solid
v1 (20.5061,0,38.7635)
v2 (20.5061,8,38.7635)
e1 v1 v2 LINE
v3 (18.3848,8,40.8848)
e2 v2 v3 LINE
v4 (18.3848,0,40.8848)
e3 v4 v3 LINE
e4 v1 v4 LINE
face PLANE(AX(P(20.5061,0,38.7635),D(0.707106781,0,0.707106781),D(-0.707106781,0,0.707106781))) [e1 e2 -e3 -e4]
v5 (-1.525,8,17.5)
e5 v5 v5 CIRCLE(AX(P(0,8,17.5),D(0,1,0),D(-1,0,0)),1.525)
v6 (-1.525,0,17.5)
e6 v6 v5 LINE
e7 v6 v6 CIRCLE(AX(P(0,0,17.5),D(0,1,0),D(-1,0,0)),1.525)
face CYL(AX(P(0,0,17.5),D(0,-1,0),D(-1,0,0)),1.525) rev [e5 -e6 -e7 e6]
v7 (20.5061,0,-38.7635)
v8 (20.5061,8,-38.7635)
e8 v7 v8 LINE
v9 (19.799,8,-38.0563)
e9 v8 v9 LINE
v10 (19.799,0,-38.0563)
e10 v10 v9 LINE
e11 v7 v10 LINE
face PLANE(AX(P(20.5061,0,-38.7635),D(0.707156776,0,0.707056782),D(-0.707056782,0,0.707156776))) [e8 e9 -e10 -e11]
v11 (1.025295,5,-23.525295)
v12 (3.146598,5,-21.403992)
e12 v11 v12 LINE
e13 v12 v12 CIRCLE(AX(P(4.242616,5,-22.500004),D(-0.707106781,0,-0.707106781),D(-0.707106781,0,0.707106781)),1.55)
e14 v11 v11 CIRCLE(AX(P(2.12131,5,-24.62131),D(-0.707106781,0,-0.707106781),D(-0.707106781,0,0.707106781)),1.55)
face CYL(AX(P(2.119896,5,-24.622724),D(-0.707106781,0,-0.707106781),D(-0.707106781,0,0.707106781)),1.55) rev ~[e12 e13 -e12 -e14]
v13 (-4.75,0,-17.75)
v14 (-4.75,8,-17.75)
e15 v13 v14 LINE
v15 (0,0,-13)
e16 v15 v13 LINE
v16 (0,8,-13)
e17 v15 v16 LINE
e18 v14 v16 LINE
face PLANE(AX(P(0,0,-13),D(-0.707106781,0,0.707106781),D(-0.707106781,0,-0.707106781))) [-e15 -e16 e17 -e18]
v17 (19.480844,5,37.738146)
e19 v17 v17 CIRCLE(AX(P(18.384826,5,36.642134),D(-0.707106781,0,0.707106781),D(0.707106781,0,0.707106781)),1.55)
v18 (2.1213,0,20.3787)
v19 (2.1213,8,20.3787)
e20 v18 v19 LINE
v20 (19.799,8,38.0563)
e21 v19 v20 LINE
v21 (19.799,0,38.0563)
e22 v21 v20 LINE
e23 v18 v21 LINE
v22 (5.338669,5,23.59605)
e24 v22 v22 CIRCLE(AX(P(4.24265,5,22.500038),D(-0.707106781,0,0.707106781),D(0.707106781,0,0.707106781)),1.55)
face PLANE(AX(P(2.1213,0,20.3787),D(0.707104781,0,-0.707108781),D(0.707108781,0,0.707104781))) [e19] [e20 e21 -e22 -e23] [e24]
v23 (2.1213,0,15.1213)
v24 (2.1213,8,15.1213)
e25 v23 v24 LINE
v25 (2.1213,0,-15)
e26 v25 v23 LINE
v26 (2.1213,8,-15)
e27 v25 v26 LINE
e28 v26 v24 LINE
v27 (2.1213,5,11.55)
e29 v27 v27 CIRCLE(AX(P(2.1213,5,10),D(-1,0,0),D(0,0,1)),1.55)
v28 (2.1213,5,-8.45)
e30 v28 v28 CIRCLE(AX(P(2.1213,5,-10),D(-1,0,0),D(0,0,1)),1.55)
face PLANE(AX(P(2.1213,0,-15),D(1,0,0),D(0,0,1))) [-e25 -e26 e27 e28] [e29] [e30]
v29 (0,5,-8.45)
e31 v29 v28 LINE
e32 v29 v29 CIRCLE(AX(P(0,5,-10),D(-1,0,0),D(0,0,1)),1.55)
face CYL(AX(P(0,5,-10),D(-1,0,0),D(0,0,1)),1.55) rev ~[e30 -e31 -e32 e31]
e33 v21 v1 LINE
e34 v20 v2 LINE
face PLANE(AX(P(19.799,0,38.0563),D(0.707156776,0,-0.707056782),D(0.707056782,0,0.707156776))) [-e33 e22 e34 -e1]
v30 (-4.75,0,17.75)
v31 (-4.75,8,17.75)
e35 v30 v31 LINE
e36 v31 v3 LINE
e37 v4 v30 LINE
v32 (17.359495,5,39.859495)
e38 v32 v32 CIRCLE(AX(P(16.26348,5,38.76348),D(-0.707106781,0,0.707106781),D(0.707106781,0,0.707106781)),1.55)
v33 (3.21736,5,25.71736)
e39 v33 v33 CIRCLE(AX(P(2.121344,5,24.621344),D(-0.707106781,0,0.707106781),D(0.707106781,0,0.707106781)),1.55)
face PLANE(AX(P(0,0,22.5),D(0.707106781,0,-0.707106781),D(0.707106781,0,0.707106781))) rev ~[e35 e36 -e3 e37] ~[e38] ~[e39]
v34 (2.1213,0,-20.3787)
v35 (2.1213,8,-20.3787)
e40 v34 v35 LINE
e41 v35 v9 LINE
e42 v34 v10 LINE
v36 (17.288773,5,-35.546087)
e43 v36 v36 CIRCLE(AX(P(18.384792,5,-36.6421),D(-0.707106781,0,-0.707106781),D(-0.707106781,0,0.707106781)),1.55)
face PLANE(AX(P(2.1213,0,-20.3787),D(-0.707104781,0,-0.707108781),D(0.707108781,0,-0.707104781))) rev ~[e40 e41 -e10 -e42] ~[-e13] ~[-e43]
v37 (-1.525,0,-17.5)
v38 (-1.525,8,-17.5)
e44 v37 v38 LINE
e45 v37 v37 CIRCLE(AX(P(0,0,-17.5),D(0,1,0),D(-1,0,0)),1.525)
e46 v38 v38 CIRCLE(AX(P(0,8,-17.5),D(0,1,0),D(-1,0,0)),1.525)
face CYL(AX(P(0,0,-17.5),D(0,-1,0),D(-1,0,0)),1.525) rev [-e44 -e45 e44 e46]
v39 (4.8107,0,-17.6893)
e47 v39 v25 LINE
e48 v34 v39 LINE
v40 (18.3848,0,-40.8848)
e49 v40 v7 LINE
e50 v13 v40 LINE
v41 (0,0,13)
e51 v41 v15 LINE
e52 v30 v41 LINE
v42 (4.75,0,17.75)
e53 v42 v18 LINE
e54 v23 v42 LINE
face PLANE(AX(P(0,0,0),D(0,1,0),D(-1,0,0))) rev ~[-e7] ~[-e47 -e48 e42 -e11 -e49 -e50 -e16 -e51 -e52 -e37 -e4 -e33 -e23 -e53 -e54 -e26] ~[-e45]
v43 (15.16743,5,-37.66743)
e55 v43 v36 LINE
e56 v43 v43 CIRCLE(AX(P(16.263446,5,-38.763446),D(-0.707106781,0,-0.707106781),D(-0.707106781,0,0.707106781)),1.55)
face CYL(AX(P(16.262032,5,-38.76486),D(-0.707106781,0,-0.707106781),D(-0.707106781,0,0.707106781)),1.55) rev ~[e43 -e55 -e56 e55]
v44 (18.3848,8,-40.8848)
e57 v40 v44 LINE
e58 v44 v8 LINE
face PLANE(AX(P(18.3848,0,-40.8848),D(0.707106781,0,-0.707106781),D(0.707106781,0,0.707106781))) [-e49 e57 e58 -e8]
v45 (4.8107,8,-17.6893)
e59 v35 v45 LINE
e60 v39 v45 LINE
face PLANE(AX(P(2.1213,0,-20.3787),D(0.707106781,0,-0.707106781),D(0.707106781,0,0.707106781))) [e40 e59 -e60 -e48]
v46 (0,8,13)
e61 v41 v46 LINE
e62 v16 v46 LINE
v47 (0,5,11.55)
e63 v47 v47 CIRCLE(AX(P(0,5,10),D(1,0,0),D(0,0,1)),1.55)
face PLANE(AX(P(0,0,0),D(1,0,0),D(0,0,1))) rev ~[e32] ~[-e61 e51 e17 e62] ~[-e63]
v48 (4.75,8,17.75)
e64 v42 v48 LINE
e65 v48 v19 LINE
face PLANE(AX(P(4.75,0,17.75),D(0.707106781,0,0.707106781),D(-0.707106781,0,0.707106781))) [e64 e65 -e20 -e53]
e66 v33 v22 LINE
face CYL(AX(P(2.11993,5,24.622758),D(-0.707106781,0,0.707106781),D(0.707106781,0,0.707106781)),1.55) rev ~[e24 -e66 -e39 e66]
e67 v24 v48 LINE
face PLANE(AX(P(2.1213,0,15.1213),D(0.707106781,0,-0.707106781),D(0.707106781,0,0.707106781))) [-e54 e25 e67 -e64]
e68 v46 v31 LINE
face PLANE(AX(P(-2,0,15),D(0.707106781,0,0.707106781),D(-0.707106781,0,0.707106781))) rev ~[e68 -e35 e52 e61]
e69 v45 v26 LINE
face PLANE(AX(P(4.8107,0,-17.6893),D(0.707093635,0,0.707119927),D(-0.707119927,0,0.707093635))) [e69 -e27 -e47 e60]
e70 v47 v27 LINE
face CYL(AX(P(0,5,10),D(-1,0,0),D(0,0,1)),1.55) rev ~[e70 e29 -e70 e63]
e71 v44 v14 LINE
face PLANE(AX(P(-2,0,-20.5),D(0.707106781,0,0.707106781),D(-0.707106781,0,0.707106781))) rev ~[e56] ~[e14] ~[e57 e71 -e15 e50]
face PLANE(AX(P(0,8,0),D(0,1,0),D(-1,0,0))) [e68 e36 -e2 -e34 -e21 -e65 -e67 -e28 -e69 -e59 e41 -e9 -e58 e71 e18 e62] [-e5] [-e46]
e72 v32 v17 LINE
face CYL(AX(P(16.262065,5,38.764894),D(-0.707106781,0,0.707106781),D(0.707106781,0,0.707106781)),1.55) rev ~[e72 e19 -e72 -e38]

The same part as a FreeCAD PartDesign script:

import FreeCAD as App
import Part
import Sketcher
Q = App.Units.Quantity

doc = App.newDocument("Part")
params = doc.addObject("Spreadsheet::Sheet", "Params")
for row, (alias, value) in enumerate([
    ("sketch1_diameter", "3.05 mm"),
    ("sketch1_height", "26 mm"),
    ("sketch1_length", "25 mm"),
    ("sketch1_length2", "3 mm"),
    ("sketch1_length3", "1 mm"),
    ("pad1_length", "8 mm"),
    ("sketch2_diameter", "3.1 mm"),
    ("pocket1_length", "8 mm"),
    ("sketch3_diameter", "3.1 mm"),
    ("pocket2_length", "8 mm"),
    ("sketch4_diameter", "3.1 mm"),
    ("pocket3_length", "8 mm"),
], start=1):
    params.set(f"A{row}", alias)
    params.set(f"B{row}", "=" + value)
    params.setAlias(f"B{row}", alias)

body = doc.addObject("PartDesign::Body", "Body")

sketch1 = body.newObject("Sketcher::SketchObject", "Sketch")
sketch1.AttachmentSupport = (doc.getObject("XZ_Plane"), [""])
sketch1.MapMode = "FlatFace"
sketch1.addGeometry([
    Part.LineSegment(App.Vector(19.8, 38.1, 0), App.Vector(2.1, 20.4, 0)),
    Part.LineSegment(App.Vector(2.1, 20.4, 0), App.Vector(4.8, 17.8, 0)),
    Part.LineSegment(App.Vector(4.8, 17.8, 0), App.Vector(2.1, 15.1, 0)),
    Part.LineSegment(App.Vector(2.1, 15.1, 0), App.Vector(2.1, -15, 0)),
    Part.LineSegment(App.Vector(2.1, -15, 0), App.Vector(4.8, -17.7, 0)),
    Part.LineSegment(App.Vector(4.8, -17.7, 0), App.Vector(2.1, -20.4, 0)),
    Part.LineSegment(App.Vector(2.1, -20.4, 0), App.Vector(19.8, -38.1, 0)),
    Part.LineSegment(App.Vector(19.8, -38.1, 0), App.Vector(20.5, -38.8, 0)),
    Part.LineSegment(App.Vector(20.5, -38.8, 0), App.Vector(18.4, -40.9, 0)),
    Part.LineSegment(App.Vector(18.4, -40.9, 0), App.Vector(-4.8, -17.8, 0)),
    Part.LineSegment(App.Vector(-4.8, -17.8, 0), App.Vector(0, -13, 0)),
    Part.LineSegment(App.Vector(0, -13, 0), App.Vector(0, 13, 0)),
    Part.LineSegment(App.Vector(0, 13, 0), App.Vector(-4.8, 17.8, 0)),
    Part.LineSegment(App.Vector(-4.8, 17.8, 0), App.Vector(18.4, 40.9, 0)),
    Part.LineSegment(App.Vector(18.4, 40.9, 0), App.Vector(20.5, 38.8, 0)),
    Part.LineSegment(App.Vector(20.5, 38.8, 0), App.Vector(19.8, 38.1, 0)),
    Part.Circle(App.Vector(0, 17.5, 0), App.Vector(0, 0, 1), 1.5),
    Part.Circle(App.Vector(0, -17.5, 0), App.Vector(0, 0, 1), 1.5),
], False)
sketch1.addConstraint([
    Sketcher.Constraint("Coincident", 0, 2, 1, 1),
    Sketcher.Constraint("Coincident", 1, 2, 2, 1),
    Sketcher.Constraint("Coincident", 2, 2, 3, 1),
    Sketcher.Constraint("Coincident", 3, 2, 4, 1),
    Sketcher.Constraint("Coincident", 4, 2, 5, 1),
    Sketcher.Constraint("Coincident", 5, 2, 6, 1),
    Sketcher.Constraint("Coincident", 6, 2, 7, 1),
    Sketcher.Constraint("Coincident", 7, 2, 8, 1),
    Sketcher.Constraint("Coincident", 8, 2, 9, 1),
    Sketcher.Constraint("Coincident", 9, 2, 10, 1),
    Sketcher.Constraint("Coincident", 10, 2, 11, 1),
    Sketcher.Constraint("Coincident", 11, 2, 12, 1),
    Sketcher.Constraint("Coincident", 12, 2, 13, 1),
    Sketcher.Constraint("Coincident", 13, 2, 14, 1),
    Sketcher.Constraint("Coincident", 14, 2, 15, 1),
    Sketcher.Constraint("Coincident", 15, 2, 0, 1),
    Sketcher.Constraint("Vertical", 3),
    Sketcher.Constraint("Vertical", 11),
    Sketcher.Constraint("Equal", 16, 17),
    Sketcher.Constraint("Symmetric", 16, 3, 17, 3, -1, 1),
    Sketcher.Constraint("Symmetric", 1, 2, 9, 2, -1, 1),
    Sketcher.Constraint("Symmetric", 10, 2, 11, 2, -1, 1),
    Sketcher.Constraint("Symmetric", 1, 2, 12, 2, -2),
    Sketcher.Constraint("Symmetric", 0, 2, 5, 2, -1),
    Sketcher.Constraint("Symmetric", 8, 2, 13, 2, -1),
    Sketcher.Constraint("Symmetric", 7, 2, 14, 2, -1),
    Sketcher.Constraint("Symmetric", 6, 2, 15, 2, -1),
    Sketcher.Constraint("PointOnObject", 16, 3, -2),
    Sketcher.Constraint("Perpendicular", 0, 1),
    Sketcher.Constraint("Perpendicular", 1, 2),
    Sketcher.Constraint("Perpendicular", 2, 4),
    Sketcher.Constraint("Perpendicular", 4, 5),
    Sketcher.Constraint("Perpendicular", 5, 6),
    Sketcher.Constraint("Parallel", 6, 7),
    Sketcher.Constraint("Perpendicular", 7, 8),
    Sketcher.Constraint("Perpendicular", 8, 9),
    Sketcher.Constraint("Perpendicular", 9, 10),
    Sketcher.Constraint("Vertical", 0, 2, 2, 2),
    Sketcher.Constraint("Diameter", 16, Q("3.05 mm")),
    Sketcher.Constraint("DistanceY", 11, 1, 11, 2, Q("26 mm")),
    Sketcher.Constraint("Distance", 0, Q("25 mm")),
    Sketcher.Constraint("Distance", 8, Q("3 mm")),
    Sketcher.Constraint("Distance", 7, Q("1 mm")),
    Sketcher.Constraint("DistanceY", 3, 2, -1, 1, Q("15 mm")),
    Sketcher.Constraint("DistanceY", 17, 3, 16, 3, Q("35 mm")),
    Sketcher.Constraint("DistanceY", 5, 2, 2, 2, Q("35.5 mm")),
])
sketch1.setExpression("Constraints[38]", "Params.sketch1_diameter")
sketch1.setExpression("Constraints[39]", "Params.sketch1_height")
sketch1.setExpression("Constraints[40]", "Params.sketch1_length")
sketch1.setExpression("Constraints[41]", "Params.sketch1_length2")
sketch1.setExpression("Constraints[42]", "Params.sketch1_length3")
pad1 = body.newObject("PartDesign::Pad", "Pad")
pad1.Profile = sketch1
pad1.setExpression("Length", "Params.pad1_length")
pad1.Reversed = True

sketch2 = body.newObject("Sketcher::SketchObject", "Sketch001")
sketch2.AttachmentSupport = (doc.getObject("YZ_Plane"), [""])
sketch2.MapMode = "FlatFace"
sketch2.addGeometry([
    Part.Circle(App.Vector(5, -10, 0), App.Vector(0, 0, 1), 1.6),
    Part.Circle(App.Vector(5, 10, 0), App.Vector(0, 0, 1), 1.6),
], False)
sketch2.addConstraint([
    Sketcher.Constraint("Equal", 0, 1),
    Sketcher.Constraint("Symmetric", 0, 3, 1, 3, -1),
    Sketcher.Constraint("Diameter", 0, Q("3.1 mm")),
    Sketcher.Constraint("DistanceX", -1, 1, 0, 3, Q("5 mm")),
    Sketcher.Constraint("DistanceY", 0, 3, -1, 1, Q("10 mm")),
])
sketch2.setExpression("Constraints[2]", "Params.sketch2_diameter")
pocket1 = body.newObject("PartDesign::Pocket", "Pocket")
pocket1.Profile = sketch2
pocket1.setExpression("Length", "Params.pocket1_length")
pocket1.Reversed = True

sketch3 = body.newObject("Sketcher::SketchObject", "Sketch002")
sketch3.Placement = App.Placement(App.Vector(-4.75, 0, -17.75), App.Rotation(App.Vector(-0.707106781, 0, 0.707106781), App.Vector(0, 0.999999999, 0), App.Vector(-0.707106781, 0, -0.707106781), "ZXY"))
sketch3.addGeometry([
    Part.Circle(App.Vector(-29.7, 5, 0), App.Vector(0, 0, 1), 1.6),
    Part.Circle(App.Vector(-9.7, 5, 0), App.Vector(0, 0, 1), 1.6),
], False)
sketch3.addConstraint([
    Sketcher.Constraint("Equal", 0, 1),
    Sketcher.Constraint("Horizontal", 0, 3, 1, 3),
    Sketcher.Constraint("Diameter", 0, Q("3.1 mm")),
    Sketcher.Constraint("DistanceY", -1, 1, 0, 3, Q("5 mm")),
    Sketcher.Constraint("DistanceX", 0, 3, 1, 3, Q("20 mm")),
    Sketcher.Constraint("DistanceX", 0, 3, -1, 1, Q("29.7175 mm")),
])
sketch3.setExpression("Constraints[2]", "Params.sketch3_diameter")
pocket2 = body.newObject("PartDesign::Pocket", "Pocket001")
pocket2.Profile = sketch3
pocket2.setExpression("Length", "Params.pocket2_length")

sketch4 = body.newObject("Sketcher::SketchObject", "Sketch003")
sketch4.Placement = App.Placement(App.Vector(18.3848, 0, 40.8848), App.Rotation(App.Vector(0.707106781, 0, 0.707106781), App.Vector(0, 0.999999999, 0), App.Vector(-0.707106781, 0, 0.707106781), "ZXY"))
sketch4.addGeometry([
    Part.Circle(App.Vector(-23, 5, 0), App.Vector(0, 0, 1), 1.6),
    Part.Circle(App.Vector(-3, 5, 0), App.Vector(0, 0, 1), 1.6),
], False)
sketch4.addConstraint([
    Sketcher.Constraint("Equal", 0, 1),
    Sketcher.Constraint("Horizontal", 0, 3, 1, 3),
    Sketcher.Constraint("Diameter", 0, Q("3.1 mm")),
    Sketcher.Constraint("DistanceY", -1, 1, 0, 3, Q("5 mm")),
    Sketcher.Constraint("DistanceX", 0, 3, 1, 3, Q("20 mm")),
    Sketcher.Constraint("DistanceX", 0, 3, -1, 1, Q("23 mm")),
])
sketch4.setExpression("Constraints[2]", "Params.sketch4_diameter")
pocket3 = body.newObject("PartDesign::Pocket", "Pocket002")
pocket3.Profile = sketch4
pocket3.setExpression("Length", "Params.pocket3_length")

doc.recompute()
